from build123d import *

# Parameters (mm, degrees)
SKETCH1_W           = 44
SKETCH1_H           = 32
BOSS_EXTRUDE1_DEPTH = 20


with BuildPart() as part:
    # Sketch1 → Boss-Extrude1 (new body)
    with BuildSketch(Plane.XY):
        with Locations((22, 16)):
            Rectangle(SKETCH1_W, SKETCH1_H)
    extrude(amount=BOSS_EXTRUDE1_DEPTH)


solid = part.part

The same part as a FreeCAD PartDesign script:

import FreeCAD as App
import Part
import Sketcher
Q = App.Units.Quantity

doc = App.newDocument("Part")
body = doc.addObject("PartDesign::Body", "Body")

sketch1 = body.newObject("Sketcher::SketchObject", "Sketch")
sketch1.AttachmentSupport = (doc.getObject("XY_Plane"), [""])
sketch1.MapMode = "FlatFace"
sketch1.addGeometry([
    Part.LineSegment(App.Vector(0, 32, 0), App.Vector(0, 0, 0)),
    Part.LineSegment(App.Vector(0, 0, 0), App.Vector(44, 0, 0)),
    Part.LineSegment(App.Vector(44, 0, 0), App.Vector(44, 32, 0)),
    Part.LineSegment(App.Vector(44, 32, 0), App.Vector(0, 32, 0)),
], False)
sketch1.addConstraint([
    Sketcher.Constraint("Coincident", 0, 2, 1, 1),
    Sketcher.Constraint("Coincident", 1, 2, 2, 1),
    Sketcher.Constraint("Coincident", 2, 2, 3, 1),
    Sketcher.Constraint("Coincident", 3, 2, 0, 1),
    Sketcher.Constraint("Vertical", 0),
    Sketcher.Constraint("Horizontal", 1),
    Sketcher.Constraint("Vertical", 2),
    Sketcher.Constraint("Horizontal", 3),
    Sketcher.Constraint("Coincident", 0, 2, -1, 1),
    Sketcher.Constraint("DistanceX", 1, 1, 1, 2, Q("44 mm")),
    Sketcher.Constraint("DistanceY", 0, 2, 0, 1, Q("32 mm")),
])
pad1 = body.newObject("PartDesign::Pad", "Pad")
pad1.Profile = sketch1
pad1.Length = 20

doc.recompute()
